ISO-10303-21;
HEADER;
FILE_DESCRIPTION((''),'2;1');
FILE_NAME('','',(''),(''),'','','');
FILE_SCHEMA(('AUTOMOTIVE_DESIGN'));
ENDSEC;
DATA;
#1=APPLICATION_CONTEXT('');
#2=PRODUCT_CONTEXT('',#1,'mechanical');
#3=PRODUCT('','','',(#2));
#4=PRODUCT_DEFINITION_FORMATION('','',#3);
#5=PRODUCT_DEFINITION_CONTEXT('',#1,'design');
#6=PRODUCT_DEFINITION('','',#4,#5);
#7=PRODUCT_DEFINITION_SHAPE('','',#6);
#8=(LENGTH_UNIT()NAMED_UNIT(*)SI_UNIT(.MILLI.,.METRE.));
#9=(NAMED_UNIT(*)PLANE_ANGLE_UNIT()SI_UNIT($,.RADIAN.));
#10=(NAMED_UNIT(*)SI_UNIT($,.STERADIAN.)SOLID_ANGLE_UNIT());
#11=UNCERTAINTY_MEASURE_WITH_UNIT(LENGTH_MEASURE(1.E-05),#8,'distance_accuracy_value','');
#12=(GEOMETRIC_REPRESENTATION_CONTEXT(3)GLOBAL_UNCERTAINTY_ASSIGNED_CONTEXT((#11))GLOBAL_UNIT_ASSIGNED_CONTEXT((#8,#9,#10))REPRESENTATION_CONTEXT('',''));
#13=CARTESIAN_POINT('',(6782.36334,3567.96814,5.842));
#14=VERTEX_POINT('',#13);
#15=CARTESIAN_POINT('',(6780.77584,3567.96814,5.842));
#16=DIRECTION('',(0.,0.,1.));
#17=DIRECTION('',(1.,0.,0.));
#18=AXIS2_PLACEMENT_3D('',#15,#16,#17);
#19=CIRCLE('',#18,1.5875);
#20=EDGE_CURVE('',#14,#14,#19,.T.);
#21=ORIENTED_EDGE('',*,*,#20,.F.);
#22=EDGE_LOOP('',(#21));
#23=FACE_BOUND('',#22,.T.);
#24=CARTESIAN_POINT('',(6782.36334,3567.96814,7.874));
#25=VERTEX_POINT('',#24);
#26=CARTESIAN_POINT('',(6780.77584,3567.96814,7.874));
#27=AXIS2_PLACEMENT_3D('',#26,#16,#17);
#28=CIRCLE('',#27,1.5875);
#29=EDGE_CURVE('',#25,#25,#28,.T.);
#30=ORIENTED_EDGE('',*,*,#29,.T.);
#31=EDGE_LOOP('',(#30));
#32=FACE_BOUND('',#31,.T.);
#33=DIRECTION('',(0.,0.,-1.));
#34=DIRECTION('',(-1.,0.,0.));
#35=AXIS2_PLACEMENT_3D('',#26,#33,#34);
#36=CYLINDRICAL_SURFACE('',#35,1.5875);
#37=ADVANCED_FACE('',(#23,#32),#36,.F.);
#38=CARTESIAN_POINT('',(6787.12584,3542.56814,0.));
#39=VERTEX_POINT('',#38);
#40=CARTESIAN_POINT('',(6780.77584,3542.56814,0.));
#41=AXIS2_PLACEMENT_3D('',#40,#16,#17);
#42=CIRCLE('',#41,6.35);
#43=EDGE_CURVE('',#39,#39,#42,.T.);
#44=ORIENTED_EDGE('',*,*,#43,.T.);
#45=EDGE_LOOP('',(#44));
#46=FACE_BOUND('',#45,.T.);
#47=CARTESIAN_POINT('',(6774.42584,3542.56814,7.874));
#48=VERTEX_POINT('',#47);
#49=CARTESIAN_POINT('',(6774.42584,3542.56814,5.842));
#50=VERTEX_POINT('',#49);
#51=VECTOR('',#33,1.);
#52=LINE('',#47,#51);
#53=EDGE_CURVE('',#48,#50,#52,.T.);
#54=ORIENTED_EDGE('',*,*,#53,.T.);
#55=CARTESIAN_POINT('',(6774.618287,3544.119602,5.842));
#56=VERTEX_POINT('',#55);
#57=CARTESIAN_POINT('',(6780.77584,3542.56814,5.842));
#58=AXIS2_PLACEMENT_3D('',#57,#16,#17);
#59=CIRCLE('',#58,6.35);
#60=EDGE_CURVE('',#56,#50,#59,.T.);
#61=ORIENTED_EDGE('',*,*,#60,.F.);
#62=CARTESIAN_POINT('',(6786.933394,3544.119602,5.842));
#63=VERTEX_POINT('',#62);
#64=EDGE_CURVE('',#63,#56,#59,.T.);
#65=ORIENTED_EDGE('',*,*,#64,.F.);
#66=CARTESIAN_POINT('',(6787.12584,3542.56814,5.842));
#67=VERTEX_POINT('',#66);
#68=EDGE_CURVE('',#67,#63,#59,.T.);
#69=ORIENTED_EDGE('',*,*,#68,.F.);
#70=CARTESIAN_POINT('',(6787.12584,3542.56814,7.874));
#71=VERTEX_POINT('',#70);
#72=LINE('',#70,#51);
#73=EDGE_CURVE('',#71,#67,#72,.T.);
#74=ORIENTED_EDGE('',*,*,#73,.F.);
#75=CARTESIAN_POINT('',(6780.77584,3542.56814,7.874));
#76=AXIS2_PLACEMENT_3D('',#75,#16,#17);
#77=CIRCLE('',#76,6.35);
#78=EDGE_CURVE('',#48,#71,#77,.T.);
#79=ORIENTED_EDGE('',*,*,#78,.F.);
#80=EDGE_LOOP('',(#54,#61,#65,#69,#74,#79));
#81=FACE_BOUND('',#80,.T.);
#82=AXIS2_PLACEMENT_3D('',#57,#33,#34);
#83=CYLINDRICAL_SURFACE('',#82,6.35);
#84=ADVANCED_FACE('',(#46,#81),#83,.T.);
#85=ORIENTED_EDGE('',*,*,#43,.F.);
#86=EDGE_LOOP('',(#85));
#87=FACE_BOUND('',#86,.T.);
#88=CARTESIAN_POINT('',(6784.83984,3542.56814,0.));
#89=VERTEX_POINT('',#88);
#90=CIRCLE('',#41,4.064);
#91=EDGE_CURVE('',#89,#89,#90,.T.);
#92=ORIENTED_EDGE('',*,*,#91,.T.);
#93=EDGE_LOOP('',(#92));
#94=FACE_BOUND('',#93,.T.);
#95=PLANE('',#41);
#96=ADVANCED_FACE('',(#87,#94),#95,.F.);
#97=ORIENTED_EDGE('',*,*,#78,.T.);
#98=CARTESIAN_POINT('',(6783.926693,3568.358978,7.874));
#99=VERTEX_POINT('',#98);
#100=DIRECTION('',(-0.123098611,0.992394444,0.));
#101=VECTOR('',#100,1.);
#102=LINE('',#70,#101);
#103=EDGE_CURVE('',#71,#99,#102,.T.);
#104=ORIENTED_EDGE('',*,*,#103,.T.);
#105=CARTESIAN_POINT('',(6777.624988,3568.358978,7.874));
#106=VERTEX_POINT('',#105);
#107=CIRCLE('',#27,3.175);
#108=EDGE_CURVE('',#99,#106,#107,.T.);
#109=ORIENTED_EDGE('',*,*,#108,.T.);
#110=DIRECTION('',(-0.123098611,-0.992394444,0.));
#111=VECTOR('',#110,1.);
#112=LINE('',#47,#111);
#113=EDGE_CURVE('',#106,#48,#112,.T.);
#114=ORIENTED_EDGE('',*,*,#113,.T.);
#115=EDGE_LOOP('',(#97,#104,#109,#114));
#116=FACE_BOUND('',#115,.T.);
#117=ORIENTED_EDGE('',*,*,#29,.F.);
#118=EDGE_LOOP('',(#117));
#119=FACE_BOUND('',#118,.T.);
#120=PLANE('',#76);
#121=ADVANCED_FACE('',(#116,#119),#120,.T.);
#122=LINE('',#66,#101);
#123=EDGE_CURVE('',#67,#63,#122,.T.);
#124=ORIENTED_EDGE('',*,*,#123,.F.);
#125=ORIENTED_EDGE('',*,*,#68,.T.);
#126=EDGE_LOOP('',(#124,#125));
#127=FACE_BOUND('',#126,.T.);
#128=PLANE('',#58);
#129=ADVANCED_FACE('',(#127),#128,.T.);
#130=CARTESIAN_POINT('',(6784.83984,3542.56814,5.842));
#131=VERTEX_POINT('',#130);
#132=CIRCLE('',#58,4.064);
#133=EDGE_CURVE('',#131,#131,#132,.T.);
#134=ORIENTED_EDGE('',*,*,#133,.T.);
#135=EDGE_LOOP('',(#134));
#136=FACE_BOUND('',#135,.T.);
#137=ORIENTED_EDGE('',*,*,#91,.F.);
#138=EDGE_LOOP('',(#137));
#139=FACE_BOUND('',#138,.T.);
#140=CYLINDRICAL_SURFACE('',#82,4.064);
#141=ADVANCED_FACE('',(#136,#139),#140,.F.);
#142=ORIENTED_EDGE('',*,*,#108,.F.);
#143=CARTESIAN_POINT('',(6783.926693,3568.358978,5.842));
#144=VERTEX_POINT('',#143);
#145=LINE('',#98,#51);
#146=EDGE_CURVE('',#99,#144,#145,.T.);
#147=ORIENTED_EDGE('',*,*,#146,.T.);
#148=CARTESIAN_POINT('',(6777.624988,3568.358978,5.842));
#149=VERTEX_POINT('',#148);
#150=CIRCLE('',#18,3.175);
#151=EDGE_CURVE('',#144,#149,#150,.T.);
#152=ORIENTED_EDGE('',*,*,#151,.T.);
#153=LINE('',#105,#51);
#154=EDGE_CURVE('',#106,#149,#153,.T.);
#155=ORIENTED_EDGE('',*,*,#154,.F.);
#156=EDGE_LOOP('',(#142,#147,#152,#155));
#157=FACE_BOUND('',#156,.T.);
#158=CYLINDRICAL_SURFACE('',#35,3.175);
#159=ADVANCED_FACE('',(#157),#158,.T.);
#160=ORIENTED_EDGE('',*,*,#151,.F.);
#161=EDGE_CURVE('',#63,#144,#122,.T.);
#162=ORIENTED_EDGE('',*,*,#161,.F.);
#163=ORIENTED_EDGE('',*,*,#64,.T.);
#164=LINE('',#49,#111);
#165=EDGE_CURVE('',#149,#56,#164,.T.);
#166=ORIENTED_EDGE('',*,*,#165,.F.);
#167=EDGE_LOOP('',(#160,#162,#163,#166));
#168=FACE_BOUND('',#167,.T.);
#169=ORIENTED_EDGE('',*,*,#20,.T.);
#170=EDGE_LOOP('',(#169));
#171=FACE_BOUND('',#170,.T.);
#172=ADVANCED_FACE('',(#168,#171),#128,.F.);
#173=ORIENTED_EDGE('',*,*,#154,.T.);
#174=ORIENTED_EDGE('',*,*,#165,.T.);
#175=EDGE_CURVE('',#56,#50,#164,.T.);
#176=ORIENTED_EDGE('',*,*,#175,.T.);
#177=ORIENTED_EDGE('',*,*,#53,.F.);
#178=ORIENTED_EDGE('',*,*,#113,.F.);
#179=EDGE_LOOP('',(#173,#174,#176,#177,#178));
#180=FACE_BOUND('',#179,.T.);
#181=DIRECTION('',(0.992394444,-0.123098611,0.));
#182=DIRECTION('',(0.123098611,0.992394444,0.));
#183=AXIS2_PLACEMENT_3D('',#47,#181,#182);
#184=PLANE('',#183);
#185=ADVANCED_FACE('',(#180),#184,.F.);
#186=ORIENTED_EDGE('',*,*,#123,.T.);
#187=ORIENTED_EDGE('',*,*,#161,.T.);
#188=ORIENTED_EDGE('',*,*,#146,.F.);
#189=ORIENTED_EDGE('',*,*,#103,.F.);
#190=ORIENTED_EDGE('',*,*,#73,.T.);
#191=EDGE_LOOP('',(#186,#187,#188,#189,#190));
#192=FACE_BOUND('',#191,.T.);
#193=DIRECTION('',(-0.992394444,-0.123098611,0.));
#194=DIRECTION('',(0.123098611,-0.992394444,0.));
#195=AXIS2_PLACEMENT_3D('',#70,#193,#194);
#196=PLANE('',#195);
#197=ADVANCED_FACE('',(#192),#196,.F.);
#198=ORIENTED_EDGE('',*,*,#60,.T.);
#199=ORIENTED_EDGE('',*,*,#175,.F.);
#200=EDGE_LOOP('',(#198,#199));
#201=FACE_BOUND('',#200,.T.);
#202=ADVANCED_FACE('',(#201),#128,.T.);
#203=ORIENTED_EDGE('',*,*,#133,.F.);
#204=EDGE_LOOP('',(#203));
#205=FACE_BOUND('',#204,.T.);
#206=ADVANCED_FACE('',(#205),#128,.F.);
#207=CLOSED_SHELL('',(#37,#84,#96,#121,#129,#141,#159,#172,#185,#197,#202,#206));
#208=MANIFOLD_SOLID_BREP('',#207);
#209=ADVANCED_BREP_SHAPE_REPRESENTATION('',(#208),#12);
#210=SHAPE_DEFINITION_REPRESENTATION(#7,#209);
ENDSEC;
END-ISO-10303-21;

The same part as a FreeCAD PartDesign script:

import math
import FreeCAD as App
import Part
import Sketcher
Q = App.Units.Quantity

doc = App.newDocument("Part")
body = doc.addObject("PartDesign::Body", "Body")

# Sketch on XY plane
sketch1 = body.newObject("Sketcher::SketchObject", "Sketch")
sketch1.AttachmentSupport = (doc.getObject("XY_Plane"), [""])
sketch1.MapMode = "FlatFace"
sketch1.addGeometry([
    Part.Circle(App.Vector(6780.8, 3542.6, 0), App.Vector(0, 0, 1), 6.3),
    Part.Circle(App.Vector(6780.8, 3542.6, 0), App.Vector(0, 0, 1), 4.1),
], False)
sketch1.addConstraint([
    Sketcher.Constraint("Coincident", 1, 3, 0, 3),
    Sketcher.Constraint("Diameter", 0, Q("0.5 in")),
    Sketcher.Constraint("Diameter", 1, Q("0.32 in")),
    Sketcher.Constraint("DistanceX", -1, 1, 0, 3, Q("6780.77584 mm")),
    Sketcher.Constraint("DistanceY", -1, 1, 0, 3, Q("3542.56814 mm")),
])
pad1 = body.newObject("PartDesign::Pad", "Pad")
pad1.Profile = sketch1
pad1.Length = Q("0.23 in")

# Sketch on XY plane
sketch2 = body.newObject("Sketcher::SketchObject", "Sketch001")
sketch2.AttachmentSupport = (doc.getObject("XY_Plane"), [""])
sketch2.MapMode = "FlatFace"
sketch2.AttachmentOffset = App.Placement(App.Vector(0, 0, 0.23 * 25.4), App.Rotation())
sketch2.addGeometry([
    Part.LineSegment(App.Vector(6777.6, 3568.4, 0), App.Vector(6774.4, 3542.6, 0)),  # 0
    Part.ArcOfCircle(Part.Circle(App.Vector(6780.8, 3542.6, 0), App.Vector(0, 0, 1), 6.3), math.radians(180), math.radians(360)),  # 1
    Part.LineSegment(App.Vector(6787.1, 3542.6, 0), App.Vector(6783.9, 3568.4, 0)),  # 2
    Part.ArcOfCircle(Part.Circle(App.Vector(6780.8, 3568, 0), App.Vector(0, 0, 1), 3.2), math.radians(7), math.radians(173)),  # 3
    Part.Circle(App.Vector(6780.8, 3568, 0), App.Vector(0, 0, 1), 1.6),  # 4
], False)
sketch2.addConstraint([
    Sketcher.Constraint("Coincident", 0, 2, 1, 1),
    Sketcher.Constraint("Coincident", 1, 2, 2, 1),
    Sketcher.Constraint("Tangent", 2, 2, 3, 1),
    Sketcher.Constraint("Tangent", 3, 2, 0, 1),
    Sketcher.Constraint("Coincident", 4, 3, 3, 3),
    Sketcher.Constraint("Horizontal", 1, 3, 0, 2),
    Sketcher.Constraint("Horizontal", 0, 2, 1, 2),
    Sketcher.Constraint("Horizontal", 2, 2, 3, 2),
    Sketcher.Constraint("Radius", 1, Q("0.25 in")),
    Sketcher.Constraint("Diameter", 4, Q("0.125 in")),
    Sketcher.Constraint("Radius", 3, Q("0.125 in")),
    Sketcher.Constraint("DistanceY", 1, 3, 3, 3, Q("1 in")),
    Sketcher.Constraint("DistanceX", -1, 1, 1, 3, Q("6780.77584 mm")),
    Sketcher.Constraint("DistanceY", -1, 1, 1, 3, Q("3542.56814 mm")),
])
pad2 = body.newObject("PartDesign::Pad", "Pad001")
pad2.Profile = sketch2
pad2.Length = Q("0.08 in")

doc.recompute()
